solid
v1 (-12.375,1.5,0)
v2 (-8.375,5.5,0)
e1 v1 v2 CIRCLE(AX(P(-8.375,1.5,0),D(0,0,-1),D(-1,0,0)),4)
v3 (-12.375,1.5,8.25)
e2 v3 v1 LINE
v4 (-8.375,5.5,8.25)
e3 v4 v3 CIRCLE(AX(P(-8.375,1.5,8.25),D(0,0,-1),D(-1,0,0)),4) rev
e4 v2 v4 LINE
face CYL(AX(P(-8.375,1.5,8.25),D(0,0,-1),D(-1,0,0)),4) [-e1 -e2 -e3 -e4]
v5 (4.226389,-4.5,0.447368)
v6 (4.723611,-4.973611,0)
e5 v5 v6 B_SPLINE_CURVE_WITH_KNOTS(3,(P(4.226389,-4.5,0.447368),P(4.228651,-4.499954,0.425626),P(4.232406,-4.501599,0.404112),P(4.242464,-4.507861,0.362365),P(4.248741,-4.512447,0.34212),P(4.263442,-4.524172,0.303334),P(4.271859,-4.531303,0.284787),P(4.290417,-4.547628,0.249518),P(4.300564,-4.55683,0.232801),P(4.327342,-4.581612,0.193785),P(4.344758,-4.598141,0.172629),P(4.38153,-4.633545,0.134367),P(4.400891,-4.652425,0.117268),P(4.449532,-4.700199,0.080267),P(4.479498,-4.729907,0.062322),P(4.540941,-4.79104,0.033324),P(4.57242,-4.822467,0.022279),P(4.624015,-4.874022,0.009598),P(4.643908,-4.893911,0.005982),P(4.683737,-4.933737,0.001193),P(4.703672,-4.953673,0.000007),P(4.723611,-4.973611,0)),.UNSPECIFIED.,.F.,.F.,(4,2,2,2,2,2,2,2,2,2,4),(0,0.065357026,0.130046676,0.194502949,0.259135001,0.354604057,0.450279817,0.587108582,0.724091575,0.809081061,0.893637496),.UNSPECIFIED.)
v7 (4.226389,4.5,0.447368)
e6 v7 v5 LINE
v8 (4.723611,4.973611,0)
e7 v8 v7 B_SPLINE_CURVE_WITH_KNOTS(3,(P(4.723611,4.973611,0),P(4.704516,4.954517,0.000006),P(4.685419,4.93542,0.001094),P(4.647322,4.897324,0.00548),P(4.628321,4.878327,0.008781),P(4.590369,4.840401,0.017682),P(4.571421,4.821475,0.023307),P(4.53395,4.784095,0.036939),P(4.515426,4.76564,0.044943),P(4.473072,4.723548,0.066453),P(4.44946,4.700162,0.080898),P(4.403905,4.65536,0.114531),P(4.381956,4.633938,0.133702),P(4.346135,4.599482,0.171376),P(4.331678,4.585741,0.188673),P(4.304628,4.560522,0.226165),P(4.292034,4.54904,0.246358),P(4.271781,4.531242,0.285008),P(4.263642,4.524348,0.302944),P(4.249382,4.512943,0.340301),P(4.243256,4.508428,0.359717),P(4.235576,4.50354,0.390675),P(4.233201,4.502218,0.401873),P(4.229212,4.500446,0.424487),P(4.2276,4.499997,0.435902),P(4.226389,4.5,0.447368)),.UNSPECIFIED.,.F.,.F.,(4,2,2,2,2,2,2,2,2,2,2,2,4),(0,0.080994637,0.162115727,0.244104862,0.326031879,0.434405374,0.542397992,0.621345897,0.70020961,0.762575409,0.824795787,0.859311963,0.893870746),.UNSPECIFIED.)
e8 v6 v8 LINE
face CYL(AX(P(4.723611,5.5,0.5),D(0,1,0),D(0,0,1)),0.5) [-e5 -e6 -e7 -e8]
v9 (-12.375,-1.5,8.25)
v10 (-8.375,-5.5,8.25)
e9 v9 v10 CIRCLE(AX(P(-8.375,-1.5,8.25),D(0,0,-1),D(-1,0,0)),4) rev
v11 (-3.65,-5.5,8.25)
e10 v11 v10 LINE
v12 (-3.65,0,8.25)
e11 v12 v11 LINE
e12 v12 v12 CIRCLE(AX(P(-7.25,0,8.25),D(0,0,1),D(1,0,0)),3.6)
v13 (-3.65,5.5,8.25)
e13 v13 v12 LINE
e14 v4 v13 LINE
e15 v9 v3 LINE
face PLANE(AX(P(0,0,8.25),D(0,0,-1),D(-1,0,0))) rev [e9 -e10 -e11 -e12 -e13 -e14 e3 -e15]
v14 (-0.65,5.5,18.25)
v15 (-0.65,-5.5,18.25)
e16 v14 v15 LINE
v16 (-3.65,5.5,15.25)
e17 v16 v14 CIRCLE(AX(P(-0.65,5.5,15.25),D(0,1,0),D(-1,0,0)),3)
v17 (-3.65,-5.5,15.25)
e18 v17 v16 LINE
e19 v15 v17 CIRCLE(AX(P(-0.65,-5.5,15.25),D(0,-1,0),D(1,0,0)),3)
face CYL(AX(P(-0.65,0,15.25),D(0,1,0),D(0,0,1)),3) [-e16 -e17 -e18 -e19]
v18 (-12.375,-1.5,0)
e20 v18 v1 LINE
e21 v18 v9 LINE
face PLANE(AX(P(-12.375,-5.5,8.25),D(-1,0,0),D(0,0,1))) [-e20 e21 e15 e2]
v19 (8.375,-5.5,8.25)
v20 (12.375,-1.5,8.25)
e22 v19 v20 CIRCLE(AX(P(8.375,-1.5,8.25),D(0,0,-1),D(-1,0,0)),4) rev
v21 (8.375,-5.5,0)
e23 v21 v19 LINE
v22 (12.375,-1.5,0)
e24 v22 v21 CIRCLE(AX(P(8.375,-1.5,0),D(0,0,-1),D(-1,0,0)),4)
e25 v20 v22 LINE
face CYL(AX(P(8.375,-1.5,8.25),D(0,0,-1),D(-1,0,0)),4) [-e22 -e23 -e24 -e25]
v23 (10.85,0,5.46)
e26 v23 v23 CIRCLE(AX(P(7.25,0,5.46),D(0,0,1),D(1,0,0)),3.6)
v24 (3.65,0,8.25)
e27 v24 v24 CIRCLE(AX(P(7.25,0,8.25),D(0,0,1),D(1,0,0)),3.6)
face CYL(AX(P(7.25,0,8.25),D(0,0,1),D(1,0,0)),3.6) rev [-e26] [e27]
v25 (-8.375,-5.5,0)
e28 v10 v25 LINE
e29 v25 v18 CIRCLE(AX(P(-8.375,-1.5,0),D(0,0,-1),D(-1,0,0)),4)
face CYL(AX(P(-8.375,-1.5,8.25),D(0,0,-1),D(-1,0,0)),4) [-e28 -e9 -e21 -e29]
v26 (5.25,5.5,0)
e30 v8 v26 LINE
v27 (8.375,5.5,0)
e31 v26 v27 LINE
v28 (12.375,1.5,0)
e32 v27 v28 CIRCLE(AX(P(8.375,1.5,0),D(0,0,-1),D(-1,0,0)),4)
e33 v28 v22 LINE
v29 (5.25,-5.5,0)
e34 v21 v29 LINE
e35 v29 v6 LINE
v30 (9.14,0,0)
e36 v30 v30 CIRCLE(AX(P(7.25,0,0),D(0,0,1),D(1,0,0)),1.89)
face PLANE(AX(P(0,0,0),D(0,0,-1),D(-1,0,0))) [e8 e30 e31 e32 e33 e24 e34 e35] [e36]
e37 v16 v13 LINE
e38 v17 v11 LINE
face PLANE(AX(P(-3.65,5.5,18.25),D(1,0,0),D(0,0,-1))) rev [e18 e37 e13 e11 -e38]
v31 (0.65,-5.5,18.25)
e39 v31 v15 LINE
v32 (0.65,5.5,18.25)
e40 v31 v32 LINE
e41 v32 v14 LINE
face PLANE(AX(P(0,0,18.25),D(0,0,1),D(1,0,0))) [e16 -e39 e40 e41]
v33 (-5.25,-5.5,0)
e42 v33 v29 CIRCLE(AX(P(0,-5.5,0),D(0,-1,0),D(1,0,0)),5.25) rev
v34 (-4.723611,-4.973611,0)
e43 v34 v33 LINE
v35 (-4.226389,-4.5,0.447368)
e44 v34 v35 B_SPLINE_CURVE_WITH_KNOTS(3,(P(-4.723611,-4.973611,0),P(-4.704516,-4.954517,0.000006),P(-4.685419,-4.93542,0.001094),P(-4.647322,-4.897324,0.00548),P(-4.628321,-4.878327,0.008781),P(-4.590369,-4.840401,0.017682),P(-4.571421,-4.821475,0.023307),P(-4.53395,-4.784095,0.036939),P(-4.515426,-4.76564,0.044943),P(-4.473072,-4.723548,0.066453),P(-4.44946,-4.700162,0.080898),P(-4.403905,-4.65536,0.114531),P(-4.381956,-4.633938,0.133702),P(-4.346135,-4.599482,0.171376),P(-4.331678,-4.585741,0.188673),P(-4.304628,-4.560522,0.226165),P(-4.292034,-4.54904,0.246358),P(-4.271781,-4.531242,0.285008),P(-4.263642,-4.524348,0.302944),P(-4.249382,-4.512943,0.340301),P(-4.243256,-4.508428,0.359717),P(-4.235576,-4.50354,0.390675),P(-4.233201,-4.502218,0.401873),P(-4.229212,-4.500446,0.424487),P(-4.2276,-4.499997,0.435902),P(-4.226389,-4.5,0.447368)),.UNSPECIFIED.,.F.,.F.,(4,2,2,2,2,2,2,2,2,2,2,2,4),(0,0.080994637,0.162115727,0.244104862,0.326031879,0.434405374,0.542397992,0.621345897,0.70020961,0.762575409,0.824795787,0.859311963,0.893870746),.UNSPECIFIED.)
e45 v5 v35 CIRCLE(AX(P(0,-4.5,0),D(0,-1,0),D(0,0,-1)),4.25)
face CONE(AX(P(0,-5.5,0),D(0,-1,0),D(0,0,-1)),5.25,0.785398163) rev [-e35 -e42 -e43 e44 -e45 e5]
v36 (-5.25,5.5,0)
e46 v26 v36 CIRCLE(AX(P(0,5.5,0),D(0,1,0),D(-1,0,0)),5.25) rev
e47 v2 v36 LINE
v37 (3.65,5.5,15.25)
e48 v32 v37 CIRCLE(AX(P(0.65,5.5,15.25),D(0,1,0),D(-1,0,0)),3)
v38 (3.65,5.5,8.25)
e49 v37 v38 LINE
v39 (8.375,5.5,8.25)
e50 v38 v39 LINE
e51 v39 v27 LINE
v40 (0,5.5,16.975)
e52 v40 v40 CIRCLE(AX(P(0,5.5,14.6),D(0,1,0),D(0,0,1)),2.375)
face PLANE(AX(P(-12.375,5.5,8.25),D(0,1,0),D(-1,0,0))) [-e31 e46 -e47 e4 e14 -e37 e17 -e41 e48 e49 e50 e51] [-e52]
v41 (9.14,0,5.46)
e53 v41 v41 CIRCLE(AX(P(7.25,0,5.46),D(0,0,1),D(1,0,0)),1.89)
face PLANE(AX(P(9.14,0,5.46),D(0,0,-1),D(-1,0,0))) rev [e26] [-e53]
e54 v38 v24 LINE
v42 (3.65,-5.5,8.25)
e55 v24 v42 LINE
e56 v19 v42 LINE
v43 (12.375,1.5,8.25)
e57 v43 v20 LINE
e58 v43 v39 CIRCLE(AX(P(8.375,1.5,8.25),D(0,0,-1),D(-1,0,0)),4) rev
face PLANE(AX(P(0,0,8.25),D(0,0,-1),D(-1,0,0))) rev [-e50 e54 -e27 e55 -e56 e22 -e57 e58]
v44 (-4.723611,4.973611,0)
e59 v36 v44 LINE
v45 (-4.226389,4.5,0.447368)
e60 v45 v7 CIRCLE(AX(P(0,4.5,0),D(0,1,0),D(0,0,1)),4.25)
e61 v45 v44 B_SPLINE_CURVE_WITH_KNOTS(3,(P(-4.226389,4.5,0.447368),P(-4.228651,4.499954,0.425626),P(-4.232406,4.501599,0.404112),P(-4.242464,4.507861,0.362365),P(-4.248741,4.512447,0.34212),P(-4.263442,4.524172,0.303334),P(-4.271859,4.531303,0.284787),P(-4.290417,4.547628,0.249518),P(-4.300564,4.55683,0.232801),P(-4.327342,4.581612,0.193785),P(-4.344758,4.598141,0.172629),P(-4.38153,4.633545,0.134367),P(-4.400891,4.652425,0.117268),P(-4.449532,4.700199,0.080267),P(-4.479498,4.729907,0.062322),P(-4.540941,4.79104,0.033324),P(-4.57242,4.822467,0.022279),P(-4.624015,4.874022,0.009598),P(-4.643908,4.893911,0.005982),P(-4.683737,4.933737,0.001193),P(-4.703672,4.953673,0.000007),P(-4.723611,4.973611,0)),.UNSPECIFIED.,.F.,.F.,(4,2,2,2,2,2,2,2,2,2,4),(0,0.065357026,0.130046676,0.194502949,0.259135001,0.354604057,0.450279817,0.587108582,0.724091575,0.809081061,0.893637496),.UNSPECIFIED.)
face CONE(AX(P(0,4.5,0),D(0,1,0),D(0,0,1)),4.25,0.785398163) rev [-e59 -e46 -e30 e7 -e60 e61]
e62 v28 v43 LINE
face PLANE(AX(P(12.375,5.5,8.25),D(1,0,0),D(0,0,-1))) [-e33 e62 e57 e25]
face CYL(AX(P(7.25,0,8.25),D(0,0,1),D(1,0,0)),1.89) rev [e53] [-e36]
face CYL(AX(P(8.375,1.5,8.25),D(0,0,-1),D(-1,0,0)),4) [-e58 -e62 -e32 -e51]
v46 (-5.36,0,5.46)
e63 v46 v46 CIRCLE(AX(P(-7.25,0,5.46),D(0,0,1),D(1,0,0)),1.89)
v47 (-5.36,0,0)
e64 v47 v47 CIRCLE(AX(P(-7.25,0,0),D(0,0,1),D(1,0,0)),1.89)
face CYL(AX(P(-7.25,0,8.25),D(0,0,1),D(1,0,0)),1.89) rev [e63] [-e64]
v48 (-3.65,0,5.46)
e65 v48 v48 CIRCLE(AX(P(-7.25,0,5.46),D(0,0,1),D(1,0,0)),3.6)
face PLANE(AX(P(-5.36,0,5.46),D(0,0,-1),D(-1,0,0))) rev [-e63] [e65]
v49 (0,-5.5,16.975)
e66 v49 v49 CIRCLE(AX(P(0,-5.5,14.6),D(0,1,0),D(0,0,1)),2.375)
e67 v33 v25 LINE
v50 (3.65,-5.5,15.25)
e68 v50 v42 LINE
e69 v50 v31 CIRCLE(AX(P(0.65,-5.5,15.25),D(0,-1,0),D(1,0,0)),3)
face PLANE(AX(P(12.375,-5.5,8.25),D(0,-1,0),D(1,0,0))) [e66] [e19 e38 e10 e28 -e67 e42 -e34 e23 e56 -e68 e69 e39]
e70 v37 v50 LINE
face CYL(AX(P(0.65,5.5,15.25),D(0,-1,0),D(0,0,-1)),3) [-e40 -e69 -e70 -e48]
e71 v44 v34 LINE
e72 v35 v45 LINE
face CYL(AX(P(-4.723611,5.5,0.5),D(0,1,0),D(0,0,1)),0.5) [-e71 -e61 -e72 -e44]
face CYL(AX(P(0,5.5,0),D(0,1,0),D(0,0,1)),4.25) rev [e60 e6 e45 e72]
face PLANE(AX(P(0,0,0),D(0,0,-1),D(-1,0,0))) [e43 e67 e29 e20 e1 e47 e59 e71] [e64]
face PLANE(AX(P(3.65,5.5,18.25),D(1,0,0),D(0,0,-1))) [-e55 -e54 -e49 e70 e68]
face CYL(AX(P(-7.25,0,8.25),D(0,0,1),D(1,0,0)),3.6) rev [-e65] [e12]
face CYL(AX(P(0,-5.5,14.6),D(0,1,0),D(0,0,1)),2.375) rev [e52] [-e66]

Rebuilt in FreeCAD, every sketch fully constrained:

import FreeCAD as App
import Part
import Sketcher
from FreeCAD import Vector


def edges_at(feature, points):
    """Names of the edges that pass closest to the given points."""
    edges = feature.Shape.Edges
    near = lambda p: min(range(len(edges)), key=lambda i: edges[i].distToShape(Part.Vertex(*p))[0])
    return sorted({f"Edge{near(p) + 1}" for p in points})


def add_polygon(sketch, points):
    """Adds a closed chain of lines whose ends are joined by coincident constraints."""
    first, n = sketch.GeometryCount, len(points)
    for a, b in zip(points, points[1:] + points[:1]):
        sketch.addGeometry(Part.LineSegment(App.Vector(*a, 0), App.Vector(*b, 0)), False)
    for i in range(n):
        sketch.addConstraint(Sketcher.Constraint("Coincident", first + i, 2, first + (i + 1) % n, 1))

doc = App.newDocument("Part")
params = doc.addObject("Spreadsheet::Sheet", "Params")
for row, (alias, value) in enumerate([
    ("sketch1_height", "11 mm"),
    ("sketch1_width", "24.75 mm"),
    ("pad1_length", "8.25 mm"),
    ("sketch2_diameter", "3.78 mm"),
    ("hole_diameter", "3.78 mm"),
    ("hole_depth", "8.25 mm"),
    ("hole_cbore_diameter", "7.2 mm"),
    ("hole_cbore_depth", "2.79 mm"),
    ("sketch3_diameter", "8.5 mm"),
    ("hole2_diameter", "8.5 mm"),
    ("hole2_depth", "11 mm"),
    ("chamfer_size", "1 mm"),
    ("fillet_radius", "0.5 mm"),
    ("fillet2_radius", "4 mm"),
    ("sketch4_height", "11 mm"),
    ("sketch4_width", "7.3 mm"),
    ("pad2_length", "10 mm"),
    ("sketch5_diameter", "4.75 mm"),
    ("fillet3_radius", "3 mm"),
], start=1):
    params.set(f"A{row}", alias)
    params.set(f"B{row}", "=" + value)
    params.setAlias(f"B{row}", alias)

body = doc.addObject("PartDesign::Body", "Body")

sketch1 = doc.addObject("Sketcher::SketchObject", "Sketch")
body.addObject(sketch1)
sketch1.AttachmentSupport = (doc.XY_Plane, [""])
sketch1.MapMode = "FlatFace"
add_polygon(sketch1, [(12.375, 5.5), (12.375, -5.5), (-12.375, -5.5), (-12.375, 5.5)])
sketch1.addConstraint(Sketcher.Constraint("Vertical", 0))
sketch1.addConstraint(Sketcher.Constraint("Horizontal", 1))
sketch1.addConstraint(Sketcher.Constraint("Vertical", 2))
sketch1.addConstraint(Sketcher.Constraint("Horizontal", 3))
sketch1.addConstraint(Sketcher.Constraint("Symmetric", 0, 2, 2, 2, -1, 1))
sketch1.addConstraint(Sketcher.Constraint("DistanceY", 0, 2, 0, 1, 11.0))
sketch1.addConstraint(Sketcher.Constraint("DistanceX", 1, 2, 1, 1, 24.75))
sketch1.setExpression("Constraints[9]", "Params.sketch1_height")
sketch1.setExpression("Constraints[10]", "Params.sketch1_width")
pad1 = doc.addObject("PartDesign::Pad", "Pad")
body.addObject(pad1)
pad1.Profile = sketch1
pad1.setExpression("Length", "Params.pad1_length")

sketch2 = doc.addObject("Sketcher::SketchObject", "Sketch001")
body.addObject(sketch2)
sketch2.AttachmentSupport = (doc.XY_Plane, [""])
sketch2.MapMode = "FlatFace"
sketch2.AttachmentOffset = App.Placement(Vector(0, 0, 8.25), App.Rotation())
sketch2.addGeometry(Part.Circle(Vector(-7.25, 0, 0), Vector(0, 0, 1), 1.89), False)
sketch2.addGeometry(Part.Circle(Vector(7.25, 0, 0), Vector(0, 0, 1), 1.89), False)
sketch2.addConstraint(Sketcher.Constraint("Equal", 0, 1))
sketch2.addConstraint(Sketcher.Constraint("Symmetric", 0, 3, 1, 3, -1, 1))
sketch2.addConstraint(Sketcher.Constraint("PointOnObject", 0, 3, -1))
sketch2.addConstraint(Sketcher.Constraint("Diameter", 0, 3.78))
sketch2.addConstraint(Sketcher.Constraint("DistanceX", 0, 3, 1, 3, 14.5))
sketch2.setExpression("Constraints[3]", "Params.sketch2_diameter")
doc.recompute()
hole = doc.addObject("PartDesign::Hole", "Hole")
body.addObject(hole)
hole.Profile = sketch2
hole.ThreadType = "None"
hole.setExpression("Diameter", "Params.hole_diameter")
hole.DepthType = "Dimension"
hole.setExpression("Depth", "Params.hole_depth")
hole.DrillPoint = "Flat"
hole.HoleCutType = "Counterbore"
hole.setExpression("HoleCutDiameter", "Params.hole_cbore_diameter")
hole.setExpression("HoleCutDepth", "Params.hole_cbore_depth")

sketch3 = doc.addObject("Sketcher::SketchObject", "Sketch002")
body.addObject(sketch3)
sketch3.AttachmentSupport = (doc.XZ_Plane, [""])
sketch3.MapMode = "FlatFace"
sketch3.AttachmentOffset = App.Placement(Vector(0, 0, -5.5), App.Rotation())
sketch3.addGeometry(Part.Circle(Vector(0, 0, 0), Vector(0, 0, 1), 4.25), False)
sketch3.addConstraint(Sketcher.Constraint("Coincident", 0, 3, -1, 1))
sketch3.addConstraint(Sketcher.Constraint("Diameter", 0, 8.5))
sketch3.setExpression("Constraints[1]", "Params.sketch3_diameter")
doc.recompute()
hole2 = doc.addObject("PartDesign::Hole", "Hole001")
body.addObject(hole2)
hole2.Profile = sketch3
hole2.ThreadType = "None"
hole2.setExpression("Diameter", "Params.hole2_diameter")
hole2.DepthType = "Dimension"
hole2.setExpression("Depth", "Params.hole2_depth")
hole2.DrillPoint = "Flat"
hole2.Reversed = True
doc.recompute()

chamfer = doc.addObject("PartDesign::Chamfer", "Chamfer")
body.addObject(chamfer)
chamfer.Base = (hole2, edges_at(hole2, [(0, 5.5, 4.25), (0, -5.5, 4.25)]))
chamfer.setExpression("Size", "Params.chamfer_size")
doc.recompute()

fillet = doc.addObject("PartDesign::Fillet", "Fillet")
body.addObject(fillet)
fillet.Base = (chamfer, edges_at(chamfer, [(4.25, 0, 0), (-4.25, 0, 0)]))
fillet.setExpression("Radius", "Params.fillet_radius")
doc.recompute()

fillet2 = doc.addObject("PartDesign::Fillet", "Fillet001")
body.addObject(fillet2)
fillet2.Base = (fillet, edges_at(fillet, [
    (-12.375, 5.5, 4.125),
    (-12.375, -5.5, 4.125),
    (12.375, -5.5, 4.125),
    (12.375, 5.5, 4.125),
]))
fillet2.setExpression("Radius", "Params.fillet2_radius")

sketch4 = doc.addObject("Sketcher::SketchObject", "Sketch003")
body.addObject(sketch4)
sketch4.AttachmentSupport = (doc.XY_Plane, [""])
sketch4.MapMode = "FlatFace"
sketch4.AttachmentOffset = App.Placement(Vector(0, 0, 8.25), App.Rotation())
add_polygon(sketch4, [(-3.65, 5.5), (-3.65, -5.5), (3.65, -5.5), (3.65, 5.5)])
sketch4.addConstraint(Sketcher.Constraint("Vertical", 0))
sketch4.addConstraint(Sketcher.Constraint("Horizontal", 1))
sketch4.addConstraint(Sketcher.Constraint("Vertical", 2))
sketch4.addConstraint(Sketcher.Constraint("Horizontal", 3))
sketch4.addConstraint(Sketcher.Constraint("Symmetric", 0, 2, 2, 2, -1, 1))
sketch4.addConstraint(Sketcher.Constraint("DistanceY", 0, 2, 0, 1, 11.0))
sketch4.addConstraint(Sketcher.Constraint("DistanceX", 1, 1, 1, 2, 7.3))
sketch4.setExpression("Constraints[9]", "Params.sketch4_height")
sketch4.setExpression("Constraints[10]", "Params.sketch4_width")
pad2 = doc.addObject("PartDesign::Pad", "Pad001")
body.addObject(pad2)
pad2.Profile = sketch4
pad2.setExpression("Length", "Params.pad2_length")

sketch5 = doc.addObject("Sketcher::SketchObject", "Sketch004")
body.addObject(sketch5)
sketch5.AttachmentSupport = (doc.XZ_Plane, [""])
sketch5.MapMode = "FlatFace"
sketch5.addGeometry(Part.Circle(Vector(0, 14.6, 0), Vector(0, 0, 1), 2.375), False)
sketch5.addConstraint(Sketcher.Constraint("PointOnObject", 0, 3, -2))
sketch5.addConstraint(Sketcher.Constraint("Diameter", 0, 4.75))
sketch5.addConstraint(Sketcher.Constraint("DistanceY", -1, 1, 0, 3, 14.6))
sketch5.setExpression("Constraints[1]", "Params.sketch5_diameter")
pocket1 = doc.addObject("PartDesign::Pocket", "Pocket")
body.addObject(pocket1)
pocket1.Profile = sketch5
pocket1.Type = "ThroughAll"
pocket1.Midplane = True
doc.recompute()

fillet3 = doc.addObject("PartDesign::Fillet", "Fillet002")
body.addObject(fillet3)
fillet3.Base = (pocket1, edges_at(pocket1, [(3.65, 0, 18.25), (-3.65, 0, 18.25)]))
fillet3.setExpression("Radius", "Params.fillet3_radius")

doc.recompute()
